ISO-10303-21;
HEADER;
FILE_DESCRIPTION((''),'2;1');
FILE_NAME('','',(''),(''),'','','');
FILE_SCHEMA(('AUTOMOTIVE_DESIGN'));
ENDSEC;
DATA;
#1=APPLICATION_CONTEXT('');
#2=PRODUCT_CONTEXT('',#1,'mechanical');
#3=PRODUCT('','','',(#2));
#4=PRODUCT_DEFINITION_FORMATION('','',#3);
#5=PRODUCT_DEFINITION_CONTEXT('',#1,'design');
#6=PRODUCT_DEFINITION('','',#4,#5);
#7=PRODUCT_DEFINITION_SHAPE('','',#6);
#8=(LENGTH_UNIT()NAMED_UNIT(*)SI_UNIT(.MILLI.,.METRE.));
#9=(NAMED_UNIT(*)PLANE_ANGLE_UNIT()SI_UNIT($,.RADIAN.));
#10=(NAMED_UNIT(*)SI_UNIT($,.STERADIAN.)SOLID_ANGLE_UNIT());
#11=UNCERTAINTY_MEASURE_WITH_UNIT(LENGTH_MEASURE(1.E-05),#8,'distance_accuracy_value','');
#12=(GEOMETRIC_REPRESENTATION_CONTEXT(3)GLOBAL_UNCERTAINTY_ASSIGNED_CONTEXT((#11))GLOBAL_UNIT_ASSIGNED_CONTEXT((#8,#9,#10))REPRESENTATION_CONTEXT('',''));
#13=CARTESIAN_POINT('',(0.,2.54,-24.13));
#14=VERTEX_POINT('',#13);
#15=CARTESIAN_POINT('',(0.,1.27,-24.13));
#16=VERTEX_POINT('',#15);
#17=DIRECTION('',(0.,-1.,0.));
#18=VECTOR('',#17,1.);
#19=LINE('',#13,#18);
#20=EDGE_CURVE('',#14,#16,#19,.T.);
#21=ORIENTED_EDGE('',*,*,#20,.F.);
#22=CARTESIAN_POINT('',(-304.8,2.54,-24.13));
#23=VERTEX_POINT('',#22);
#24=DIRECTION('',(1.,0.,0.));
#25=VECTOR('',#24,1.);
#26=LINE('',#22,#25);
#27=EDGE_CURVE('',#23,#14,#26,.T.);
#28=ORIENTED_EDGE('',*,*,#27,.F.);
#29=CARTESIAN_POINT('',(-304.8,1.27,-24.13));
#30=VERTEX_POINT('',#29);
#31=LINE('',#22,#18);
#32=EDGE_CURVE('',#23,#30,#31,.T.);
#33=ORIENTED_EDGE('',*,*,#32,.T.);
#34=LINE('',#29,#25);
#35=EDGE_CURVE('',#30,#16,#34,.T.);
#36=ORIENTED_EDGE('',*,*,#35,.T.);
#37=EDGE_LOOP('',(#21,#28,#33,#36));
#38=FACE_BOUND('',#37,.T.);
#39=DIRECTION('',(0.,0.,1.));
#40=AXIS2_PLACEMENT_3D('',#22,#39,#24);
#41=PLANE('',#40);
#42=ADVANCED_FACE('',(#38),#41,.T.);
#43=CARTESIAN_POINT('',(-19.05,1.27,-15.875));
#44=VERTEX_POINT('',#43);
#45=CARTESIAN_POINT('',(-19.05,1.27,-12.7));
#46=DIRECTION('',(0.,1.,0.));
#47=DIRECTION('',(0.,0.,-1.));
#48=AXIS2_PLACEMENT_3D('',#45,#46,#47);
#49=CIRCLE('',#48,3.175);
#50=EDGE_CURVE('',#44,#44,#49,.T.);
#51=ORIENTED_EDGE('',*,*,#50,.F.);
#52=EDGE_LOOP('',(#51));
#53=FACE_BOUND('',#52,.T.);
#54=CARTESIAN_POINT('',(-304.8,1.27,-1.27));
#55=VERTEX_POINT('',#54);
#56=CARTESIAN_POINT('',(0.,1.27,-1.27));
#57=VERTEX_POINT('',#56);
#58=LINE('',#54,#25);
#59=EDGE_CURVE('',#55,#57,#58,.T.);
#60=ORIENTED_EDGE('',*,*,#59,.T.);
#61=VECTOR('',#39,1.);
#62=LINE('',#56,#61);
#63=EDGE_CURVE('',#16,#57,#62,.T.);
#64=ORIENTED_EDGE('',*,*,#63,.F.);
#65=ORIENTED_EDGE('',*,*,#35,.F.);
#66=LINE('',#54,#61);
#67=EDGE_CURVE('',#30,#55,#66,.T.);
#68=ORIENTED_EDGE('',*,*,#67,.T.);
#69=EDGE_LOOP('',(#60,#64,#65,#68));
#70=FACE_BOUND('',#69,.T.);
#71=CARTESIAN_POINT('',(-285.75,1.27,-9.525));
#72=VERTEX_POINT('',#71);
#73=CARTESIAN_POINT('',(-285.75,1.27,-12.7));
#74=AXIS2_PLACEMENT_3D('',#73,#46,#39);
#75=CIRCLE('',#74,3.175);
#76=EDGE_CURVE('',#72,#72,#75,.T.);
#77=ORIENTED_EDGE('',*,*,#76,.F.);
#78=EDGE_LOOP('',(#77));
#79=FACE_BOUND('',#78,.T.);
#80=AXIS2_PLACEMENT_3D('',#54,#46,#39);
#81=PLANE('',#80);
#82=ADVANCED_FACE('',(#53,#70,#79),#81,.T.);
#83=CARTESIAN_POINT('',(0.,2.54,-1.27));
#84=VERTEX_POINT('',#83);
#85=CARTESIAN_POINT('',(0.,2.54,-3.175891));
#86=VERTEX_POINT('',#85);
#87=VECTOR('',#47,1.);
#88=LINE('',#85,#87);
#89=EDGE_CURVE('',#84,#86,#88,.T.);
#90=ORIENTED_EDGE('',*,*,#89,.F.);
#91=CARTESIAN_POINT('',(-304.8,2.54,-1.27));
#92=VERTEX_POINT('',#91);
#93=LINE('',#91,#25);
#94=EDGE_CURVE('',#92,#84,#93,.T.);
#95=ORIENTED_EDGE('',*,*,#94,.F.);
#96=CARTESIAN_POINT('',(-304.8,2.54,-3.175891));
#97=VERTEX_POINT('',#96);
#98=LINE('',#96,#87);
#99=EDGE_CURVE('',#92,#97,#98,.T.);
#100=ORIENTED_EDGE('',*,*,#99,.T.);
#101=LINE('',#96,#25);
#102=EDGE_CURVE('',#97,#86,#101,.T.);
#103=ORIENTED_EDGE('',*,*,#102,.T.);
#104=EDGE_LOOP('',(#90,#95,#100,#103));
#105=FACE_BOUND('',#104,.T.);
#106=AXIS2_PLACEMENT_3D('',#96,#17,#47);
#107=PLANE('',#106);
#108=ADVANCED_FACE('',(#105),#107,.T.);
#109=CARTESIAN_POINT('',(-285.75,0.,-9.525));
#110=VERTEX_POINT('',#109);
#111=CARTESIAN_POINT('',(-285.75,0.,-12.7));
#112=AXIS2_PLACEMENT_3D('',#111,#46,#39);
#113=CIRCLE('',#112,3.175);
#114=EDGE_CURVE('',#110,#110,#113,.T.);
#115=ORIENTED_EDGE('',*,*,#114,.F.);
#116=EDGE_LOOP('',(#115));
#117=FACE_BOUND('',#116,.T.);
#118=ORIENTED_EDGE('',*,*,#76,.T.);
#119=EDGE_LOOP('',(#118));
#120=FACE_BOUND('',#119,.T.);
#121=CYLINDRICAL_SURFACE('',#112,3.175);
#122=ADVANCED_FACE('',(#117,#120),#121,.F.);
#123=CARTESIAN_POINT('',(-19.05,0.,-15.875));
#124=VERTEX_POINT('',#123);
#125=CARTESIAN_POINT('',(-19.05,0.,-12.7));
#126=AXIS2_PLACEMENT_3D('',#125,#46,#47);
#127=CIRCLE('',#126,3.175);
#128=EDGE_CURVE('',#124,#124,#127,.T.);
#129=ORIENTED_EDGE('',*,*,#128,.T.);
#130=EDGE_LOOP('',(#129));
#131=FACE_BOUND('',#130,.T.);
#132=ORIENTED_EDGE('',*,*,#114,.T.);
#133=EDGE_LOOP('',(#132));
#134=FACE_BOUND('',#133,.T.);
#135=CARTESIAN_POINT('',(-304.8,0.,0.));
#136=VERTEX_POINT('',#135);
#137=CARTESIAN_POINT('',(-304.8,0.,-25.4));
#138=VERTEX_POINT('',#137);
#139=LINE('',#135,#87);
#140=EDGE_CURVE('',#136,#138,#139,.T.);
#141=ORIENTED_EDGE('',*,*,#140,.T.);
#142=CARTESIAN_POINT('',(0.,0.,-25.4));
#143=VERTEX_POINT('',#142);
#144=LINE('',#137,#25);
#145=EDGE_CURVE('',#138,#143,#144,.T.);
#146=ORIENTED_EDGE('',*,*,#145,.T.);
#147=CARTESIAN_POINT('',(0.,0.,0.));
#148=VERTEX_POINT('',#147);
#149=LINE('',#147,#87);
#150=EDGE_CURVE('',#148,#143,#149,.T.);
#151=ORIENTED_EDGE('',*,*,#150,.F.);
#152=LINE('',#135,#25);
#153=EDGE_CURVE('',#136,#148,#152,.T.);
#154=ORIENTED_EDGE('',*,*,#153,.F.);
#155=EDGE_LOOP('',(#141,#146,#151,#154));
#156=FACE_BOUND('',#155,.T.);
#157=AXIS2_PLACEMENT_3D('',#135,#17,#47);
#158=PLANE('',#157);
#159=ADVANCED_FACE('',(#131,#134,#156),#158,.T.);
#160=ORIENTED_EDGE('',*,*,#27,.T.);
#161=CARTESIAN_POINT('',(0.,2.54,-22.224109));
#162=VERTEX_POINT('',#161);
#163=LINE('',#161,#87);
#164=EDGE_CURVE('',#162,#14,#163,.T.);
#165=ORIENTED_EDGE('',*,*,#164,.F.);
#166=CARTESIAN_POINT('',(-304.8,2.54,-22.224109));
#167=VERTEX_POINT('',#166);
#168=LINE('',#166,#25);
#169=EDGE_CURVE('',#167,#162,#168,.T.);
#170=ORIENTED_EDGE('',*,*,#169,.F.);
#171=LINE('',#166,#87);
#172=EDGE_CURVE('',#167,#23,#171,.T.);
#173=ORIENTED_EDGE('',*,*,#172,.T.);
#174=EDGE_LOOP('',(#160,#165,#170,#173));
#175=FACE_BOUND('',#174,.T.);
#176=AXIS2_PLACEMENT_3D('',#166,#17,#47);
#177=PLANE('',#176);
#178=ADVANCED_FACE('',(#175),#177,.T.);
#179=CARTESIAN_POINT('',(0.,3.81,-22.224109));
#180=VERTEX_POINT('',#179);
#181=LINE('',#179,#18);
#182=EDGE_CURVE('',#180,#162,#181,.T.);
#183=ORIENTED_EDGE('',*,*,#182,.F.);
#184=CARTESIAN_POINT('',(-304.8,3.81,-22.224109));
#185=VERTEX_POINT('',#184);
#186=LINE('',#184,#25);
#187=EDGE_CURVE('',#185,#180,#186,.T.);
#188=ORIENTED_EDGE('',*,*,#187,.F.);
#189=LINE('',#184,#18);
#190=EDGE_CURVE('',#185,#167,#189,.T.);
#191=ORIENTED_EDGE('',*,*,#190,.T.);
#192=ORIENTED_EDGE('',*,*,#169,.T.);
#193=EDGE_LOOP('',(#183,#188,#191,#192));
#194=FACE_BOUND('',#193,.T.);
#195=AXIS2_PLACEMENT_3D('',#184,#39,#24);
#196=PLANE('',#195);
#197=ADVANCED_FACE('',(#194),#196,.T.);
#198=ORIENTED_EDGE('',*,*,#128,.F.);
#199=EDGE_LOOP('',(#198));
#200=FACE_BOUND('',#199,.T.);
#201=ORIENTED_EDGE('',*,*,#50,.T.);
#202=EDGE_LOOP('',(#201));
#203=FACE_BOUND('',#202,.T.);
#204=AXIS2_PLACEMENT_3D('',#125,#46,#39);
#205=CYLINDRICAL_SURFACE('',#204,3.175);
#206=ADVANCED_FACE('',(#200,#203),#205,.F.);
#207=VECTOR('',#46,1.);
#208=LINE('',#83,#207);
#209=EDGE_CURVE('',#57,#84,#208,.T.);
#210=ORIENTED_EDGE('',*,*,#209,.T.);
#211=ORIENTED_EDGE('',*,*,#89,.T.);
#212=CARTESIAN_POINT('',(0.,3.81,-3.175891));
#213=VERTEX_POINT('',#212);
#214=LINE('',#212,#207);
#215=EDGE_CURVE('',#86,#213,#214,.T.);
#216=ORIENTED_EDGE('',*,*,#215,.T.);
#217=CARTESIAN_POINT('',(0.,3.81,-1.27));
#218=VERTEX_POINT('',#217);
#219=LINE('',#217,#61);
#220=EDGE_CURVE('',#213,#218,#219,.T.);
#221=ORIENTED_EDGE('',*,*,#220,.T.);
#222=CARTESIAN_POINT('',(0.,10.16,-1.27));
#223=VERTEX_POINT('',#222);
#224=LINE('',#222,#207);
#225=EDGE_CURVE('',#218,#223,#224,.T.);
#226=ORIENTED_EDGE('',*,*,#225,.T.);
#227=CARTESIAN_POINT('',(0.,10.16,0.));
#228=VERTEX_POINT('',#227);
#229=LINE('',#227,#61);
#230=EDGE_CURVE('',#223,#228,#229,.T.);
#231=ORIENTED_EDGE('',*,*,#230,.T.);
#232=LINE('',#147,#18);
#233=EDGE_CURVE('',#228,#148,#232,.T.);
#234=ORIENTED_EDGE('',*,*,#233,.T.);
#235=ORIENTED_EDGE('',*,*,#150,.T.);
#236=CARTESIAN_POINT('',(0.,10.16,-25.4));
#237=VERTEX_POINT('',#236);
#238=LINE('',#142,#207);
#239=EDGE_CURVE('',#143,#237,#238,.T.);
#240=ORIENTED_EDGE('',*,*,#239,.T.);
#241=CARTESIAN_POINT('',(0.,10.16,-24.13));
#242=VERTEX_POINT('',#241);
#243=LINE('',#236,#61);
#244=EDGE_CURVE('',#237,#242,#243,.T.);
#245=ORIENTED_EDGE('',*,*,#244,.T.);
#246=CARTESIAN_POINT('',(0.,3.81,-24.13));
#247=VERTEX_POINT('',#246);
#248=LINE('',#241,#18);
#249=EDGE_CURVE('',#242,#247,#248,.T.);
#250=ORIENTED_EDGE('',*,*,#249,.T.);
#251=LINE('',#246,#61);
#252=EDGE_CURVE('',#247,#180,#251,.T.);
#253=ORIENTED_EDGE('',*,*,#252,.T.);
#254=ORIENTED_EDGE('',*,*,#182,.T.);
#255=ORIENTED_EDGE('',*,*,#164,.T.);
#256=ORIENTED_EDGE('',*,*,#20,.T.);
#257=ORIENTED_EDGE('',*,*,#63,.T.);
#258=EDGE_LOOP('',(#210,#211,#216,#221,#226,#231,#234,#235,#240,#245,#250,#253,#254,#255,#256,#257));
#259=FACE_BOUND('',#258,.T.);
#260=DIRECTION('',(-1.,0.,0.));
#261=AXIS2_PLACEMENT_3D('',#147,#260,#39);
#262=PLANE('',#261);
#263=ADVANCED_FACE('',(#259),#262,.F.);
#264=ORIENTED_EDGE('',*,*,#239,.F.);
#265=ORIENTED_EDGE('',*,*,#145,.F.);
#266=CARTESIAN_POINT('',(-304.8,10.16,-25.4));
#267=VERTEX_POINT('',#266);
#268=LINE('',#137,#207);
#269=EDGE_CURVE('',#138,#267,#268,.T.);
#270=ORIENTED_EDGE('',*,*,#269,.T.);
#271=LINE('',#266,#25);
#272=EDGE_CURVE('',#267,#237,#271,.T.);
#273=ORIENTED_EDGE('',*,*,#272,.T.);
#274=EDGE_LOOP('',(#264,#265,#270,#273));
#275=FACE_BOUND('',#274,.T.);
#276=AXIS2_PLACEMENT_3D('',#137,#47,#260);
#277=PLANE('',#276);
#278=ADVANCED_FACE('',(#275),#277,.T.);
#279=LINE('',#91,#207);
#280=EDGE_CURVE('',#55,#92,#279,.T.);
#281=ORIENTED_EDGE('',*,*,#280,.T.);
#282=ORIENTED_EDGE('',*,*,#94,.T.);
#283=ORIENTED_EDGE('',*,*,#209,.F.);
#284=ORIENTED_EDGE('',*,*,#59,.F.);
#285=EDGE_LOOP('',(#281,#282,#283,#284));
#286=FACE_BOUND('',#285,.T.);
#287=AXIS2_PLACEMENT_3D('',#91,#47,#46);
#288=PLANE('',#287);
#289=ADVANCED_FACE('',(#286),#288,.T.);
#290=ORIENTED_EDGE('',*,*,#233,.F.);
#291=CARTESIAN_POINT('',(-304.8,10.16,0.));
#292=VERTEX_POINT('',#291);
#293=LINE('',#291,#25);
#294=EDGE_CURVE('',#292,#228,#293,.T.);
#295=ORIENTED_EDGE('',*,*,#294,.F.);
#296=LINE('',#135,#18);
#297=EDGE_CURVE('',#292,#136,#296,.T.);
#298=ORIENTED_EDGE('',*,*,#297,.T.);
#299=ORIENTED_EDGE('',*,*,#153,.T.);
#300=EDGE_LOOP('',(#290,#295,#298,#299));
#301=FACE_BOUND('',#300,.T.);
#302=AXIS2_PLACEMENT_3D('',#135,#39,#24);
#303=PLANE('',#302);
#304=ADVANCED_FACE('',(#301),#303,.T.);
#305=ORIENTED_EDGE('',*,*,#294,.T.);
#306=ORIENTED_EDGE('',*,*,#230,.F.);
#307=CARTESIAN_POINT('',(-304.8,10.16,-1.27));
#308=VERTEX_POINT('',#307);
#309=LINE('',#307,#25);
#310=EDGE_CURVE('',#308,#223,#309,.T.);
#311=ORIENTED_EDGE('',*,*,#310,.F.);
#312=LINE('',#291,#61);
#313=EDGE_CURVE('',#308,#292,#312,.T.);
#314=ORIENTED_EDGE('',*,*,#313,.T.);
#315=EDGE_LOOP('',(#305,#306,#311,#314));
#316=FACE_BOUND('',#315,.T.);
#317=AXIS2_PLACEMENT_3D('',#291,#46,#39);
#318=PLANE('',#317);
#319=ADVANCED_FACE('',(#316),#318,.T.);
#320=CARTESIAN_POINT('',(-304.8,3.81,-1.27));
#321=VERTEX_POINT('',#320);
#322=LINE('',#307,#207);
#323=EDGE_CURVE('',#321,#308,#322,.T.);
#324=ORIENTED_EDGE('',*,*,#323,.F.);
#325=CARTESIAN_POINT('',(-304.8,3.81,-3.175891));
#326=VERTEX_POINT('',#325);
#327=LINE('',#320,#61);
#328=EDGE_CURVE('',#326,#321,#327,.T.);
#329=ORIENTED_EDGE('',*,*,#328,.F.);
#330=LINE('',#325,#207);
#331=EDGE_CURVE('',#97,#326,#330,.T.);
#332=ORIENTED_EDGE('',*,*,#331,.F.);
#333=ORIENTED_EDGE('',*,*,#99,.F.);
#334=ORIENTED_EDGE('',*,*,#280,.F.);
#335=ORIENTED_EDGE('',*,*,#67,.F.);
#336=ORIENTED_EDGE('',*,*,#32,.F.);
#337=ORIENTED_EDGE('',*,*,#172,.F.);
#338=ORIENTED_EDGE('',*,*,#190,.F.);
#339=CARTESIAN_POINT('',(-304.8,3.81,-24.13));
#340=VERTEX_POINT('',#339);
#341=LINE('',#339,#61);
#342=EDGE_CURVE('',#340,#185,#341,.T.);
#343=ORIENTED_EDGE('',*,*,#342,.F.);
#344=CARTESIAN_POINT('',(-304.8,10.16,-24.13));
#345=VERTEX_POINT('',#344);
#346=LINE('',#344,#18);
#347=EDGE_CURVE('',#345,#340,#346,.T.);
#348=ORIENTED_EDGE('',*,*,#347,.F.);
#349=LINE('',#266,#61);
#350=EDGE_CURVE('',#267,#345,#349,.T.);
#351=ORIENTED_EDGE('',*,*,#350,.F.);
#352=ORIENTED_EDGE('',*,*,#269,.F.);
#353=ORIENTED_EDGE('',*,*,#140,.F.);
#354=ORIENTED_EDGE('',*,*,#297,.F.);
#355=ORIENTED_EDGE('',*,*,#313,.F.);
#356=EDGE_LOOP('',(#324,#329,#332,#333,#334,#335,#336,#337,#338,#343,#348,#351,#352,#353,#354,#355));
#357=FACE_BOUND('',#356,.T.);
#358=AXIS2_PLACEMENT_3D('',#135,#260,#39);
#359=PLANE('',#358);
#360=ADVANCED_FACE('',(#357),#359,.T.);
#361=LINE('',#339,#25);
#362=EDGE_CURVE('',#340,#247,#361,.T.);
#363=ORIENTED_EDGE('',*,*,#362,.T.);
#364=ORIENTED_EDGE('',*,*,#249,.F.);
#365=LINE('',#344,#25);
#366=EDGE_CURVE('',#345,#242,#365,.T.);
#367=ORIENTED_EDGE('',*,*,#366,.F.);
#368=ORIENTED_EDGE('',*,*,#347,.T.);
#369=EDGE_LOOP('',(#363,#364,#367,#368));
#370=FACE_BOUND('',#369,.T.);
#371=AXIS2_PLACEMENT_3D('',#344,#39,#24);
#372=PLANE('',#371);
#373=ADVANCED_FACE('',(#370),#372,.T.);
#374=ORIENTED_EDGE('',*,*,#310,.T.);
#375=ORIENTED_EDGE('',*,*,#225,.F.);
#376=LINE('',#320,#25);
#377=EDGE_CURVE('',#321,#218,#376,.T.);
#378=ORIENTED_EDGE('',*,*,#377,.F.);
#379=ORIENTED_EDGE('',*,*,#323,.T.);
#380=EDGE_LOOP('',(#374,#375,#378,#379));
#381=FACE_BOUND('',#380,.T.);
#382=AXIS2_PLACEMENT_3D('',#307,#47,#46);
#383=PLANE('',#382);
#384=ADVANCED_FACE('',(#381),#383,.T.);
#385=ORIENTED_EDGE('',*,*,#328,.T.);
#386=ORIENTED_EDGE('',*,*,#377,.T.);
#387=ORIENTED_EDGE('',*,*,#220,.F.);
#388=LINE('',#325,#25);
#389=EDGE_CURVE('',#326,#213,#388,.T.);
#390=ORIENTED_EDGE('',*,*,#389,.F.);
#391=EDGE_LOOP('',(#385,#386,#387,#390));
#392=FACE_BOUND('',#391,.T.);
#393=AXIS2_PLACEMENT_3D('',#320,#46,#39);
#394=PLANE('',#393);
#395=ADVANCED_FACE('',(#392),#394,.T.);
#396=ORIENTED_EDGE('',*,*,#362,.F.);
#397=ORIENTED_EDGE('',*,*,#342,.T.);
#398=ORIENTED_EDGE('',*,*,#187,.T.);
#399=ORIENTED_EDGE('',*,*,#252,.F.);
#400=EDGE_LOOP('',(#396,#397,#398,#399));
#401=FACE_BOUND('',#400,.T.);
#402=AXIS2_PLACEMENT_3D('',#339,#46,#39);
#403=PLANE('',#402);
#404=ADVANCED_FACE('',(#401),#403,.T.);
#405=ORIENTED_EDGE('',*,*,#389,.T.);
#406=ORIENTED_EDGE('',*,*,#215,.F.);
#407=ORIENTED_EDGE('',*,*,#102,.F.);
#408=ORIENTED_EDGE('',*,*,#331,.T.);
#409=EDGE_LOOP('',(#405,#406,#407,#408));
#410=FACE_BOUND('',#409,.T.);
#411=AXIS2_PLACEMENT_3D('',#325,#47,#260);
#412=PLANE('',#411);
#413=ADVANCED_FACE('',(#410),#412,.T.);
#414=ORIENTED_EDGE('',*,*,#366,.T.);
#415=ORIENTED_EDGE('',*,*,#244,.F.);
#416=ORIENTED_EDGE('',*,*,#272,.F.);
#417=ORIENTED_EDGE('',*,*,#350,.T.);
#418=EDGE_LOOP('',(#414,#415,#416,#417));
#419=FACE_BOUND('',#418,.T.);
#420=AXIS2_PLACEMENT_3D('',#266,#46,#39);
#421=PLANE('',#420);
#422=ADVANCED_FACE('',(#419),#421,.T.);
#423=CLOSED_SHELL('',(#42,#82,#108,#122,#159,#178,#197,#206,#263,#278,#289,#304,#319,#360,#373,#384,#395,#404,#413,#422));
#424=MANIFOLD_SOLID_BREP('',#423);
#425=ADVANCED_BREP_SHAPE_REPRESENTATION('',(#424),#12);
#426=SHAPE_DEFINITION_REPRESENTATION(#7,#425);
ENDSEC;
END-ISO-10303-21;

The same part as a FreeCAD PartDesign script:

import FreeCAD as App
import Part
import Sketcher

V = App.Vector
Q = App.Units.Quantity

doc = App.newDocument("Part")
body = doc.addObject("PartDesign::Body", "Body")

# Sketch on YZ plane
sketch1 = body.newObject("Sketcher::SketchObject", "Sketch")
sketch1.AttachmentSupport = (doc.getObject("YZ_Plane"), [""])
sketch1.MapMode = "FlatFace"
sketch1.addGeometry([
    Part.LineSegment(V(0, 0, 0), V(0, -25.4, 0)),  # 0
    Part.LineSegment(V(0, -25.4, 0), V(10.16, -25.4, 0)),  # 1
    Part.LineSegment(V(10.16, -25.4, 0), V(10.16, -24.13, 0)),  # 2
    Part.LineSegment(V(10.16, -24.13, 0), V(3.81, -24.13, 0)),  # 3
    Part.LineSegment(V(3.81, -24.13, 0), V(3.81, -22.224109, 0)),  # 4
    Part.LineSegment(V(3.81, -22.224109, 0), V(2.54, -22.224109, 0)),  # 5
    Part.LineSegment(V(2.54, -22.224109, 0), V(2.54, -24.13, 0)),  # 6
    Part.LineSegment(V(2.54, -24.13, 0), V(1.27, -24.13, 0)),  # 7
    Part.LineSegment(V(1.27, -24.13, 0), V(1.27, -1.27, 0)),  # 8
    Part.LineSegment(V(1.27, -1.27, 0), V(2.54, -1.27, 0)),  # 9
    Part.LineSegment(V(2.54, -1.27, 0), V(2.54, -3.175891, 0)),  # 10
    Part.LineSegment(V(2.54, -3.175891, 0), V(3.81, -3.175891, 0)),  # 11
    Part.LineSegment(V(3.81, -3.175891, 0), V(3.81, -1.27, 0)),  # 12
    Part.LineSegment(V(3.81, -1.27, 0), V(10.16, -1.27, 0)),  # 13
    Part.LineSegment(V(10.16, -1.27, 0), V(10.16, 0, 0)),  # 14
    Part.LineSegment(V(10.16, 0, 0), V(0, 0, 0)),  # 15
], False)
sketch1.addConstraint([
    Sketcher.Constraint("Coincident", 0, 2, 1, 1),
    Sketcher.Constraint("Coincident", 1, 2, 2, 1),
    Sketcher.Constraint("Coincident", 2, 2, 3, 1),
    Sketcher.Constraint("Coincident", 3, 2, 4, 1),
    Sketcher.Constraint("Coincident", 4, 2, 5, 1),
    Sketcher.Constraint("Coincident", 5, 2, 6, 1),
    Sketcher.Constraint("Coincident", 6, 2, 7, 1),
    Sketcher.Constraint("Coincident", 7, 2, 8, 1),
    Sketcher.Constraint("Coincident", 8, 2, 9, 1),
    Sketcher.Constraint("Coincident", 9, 2, 10, 1),
    Sketcher.Constraint("Coincident", 10, 2, 11, 1),
    Sketcher.Constraint("Coincident", 11, 2, 12, 1),
    Sketcher.Constraint("Coincident", 12, 2, 13, 1),
    Sketcher.Constraint("Coincident", 13, 2, 14, 1),
    Sketcher.Constraint("Coincident", 14, 2, 15, 1),
    Sketcher.Constraint("Coincident", 15, 2, 0, 1),
    Sketcher.Constraint("Vertical", 0),
    Sketcher.Constraint("Horizontal", 1),
    Sketcher.Constraint("Vertical", 2),
    Sketcher.Constraint("Horizontal", 3),
    Sketcher.Constraint("Vertical", 4),
    Sketcher.Constraint("Horizontal", 5),
    Sketcher.Constraint("Vertical", 6),
    Sketcher.Constraint("Horizontal", 7),
    Sketcher.Constraint("Vertical", 8),
    Sketcher.Constraint("Horizontal", 9),
    Sketcher.Constraint("Vertical", 10),
    Sketcher.Constraint("Horizontal", 11),
    Sketcher.Constraint("Vertical", 12),
    Sketcher.Constraint("Horizontal", 13),
    Sketcher.Constraint("Vertical", 14),
    Sketcher.Constraint("Horizontal", 15),
    Sketcher.Constraint("Coincident", 15, 2, -1, 1),
    Sketcher.Constraint("Horizontal", 3, 2, 6, 2),
    Sketcher.Constraint("Horizontal", 9, 2, 12, 2),
    Sketcher.Constraint("Vertical", 6, 2, 9, 2),
    Sketcher.Constraint("Vertical", 4, 2, 11, 2),
    Sketcher.Constraint("Vertical", 2, 2, 13, 2),
    Sketcher.Constraint("Equal", 5, 7),
    Sketcher.Constraint("Equal", 11, 2),
    Sketcher.Constraint("Equal", 6, 10),
    Sketcher.Constraint("Equal", 2, 14),
    Sketcher.Constraint("DistanceY", 0, 2, 0, 1, Q("1 in")),
    Sketcher.Constraint("DistanceX", 1, 1, 1, 2, Q("0.4 in")),
    Sketcher.Constraint("DistanceY", 8, 1, 8, 2, Q("0.9 in")),
    Sketcher.Constraint("DistanceX", 3, 2, 3, 1, Q("0.25 in")),
    Sketcher.Constraint("DistanceY", 4, 1, 4, 2, 1.905891),
])
pad1 = body.newObject("PartDesign::Pad", "Pad")
pad1.Profile = sketch1
pad1.Length = Q("12 in")
pad1.Reversed = True

# Sketch on XZ plane
sketch2 = body.newObject("Sketcher::SketchObject", "Sketch001")
sketch2.AttachmentSupport = (doc.getObject("XZ_Plane"), [""])
sketch2.MapMode = "FlatFace"
sketch2.AttachmentOffset = App.Placement(V(0, 0, -0.05 * 25.4), App.Rotation())
sketch2.addGeometry([
    Part.Circle(V(-285.75, -12.7, 0), V(0, 0, 1), 3.175),
    Part.Circle(V(-19.05, -12.7, 0), V(0, 0, 1), 3.175),
], False)
sketch2.addConstraint([
    Sketcher.Constraint("Equal", 0, 1),
    Sketcher.Constraint("Horizontal", 0, 3, 1, 3),
    Sketcher.Constraint("Diameter", 0, Q("0.25 in")),
    Sketcher.Constraint("DistanceY", 0, 3, -1, 1, Q("0.5 in")),
    Sketcher.Constraint("DistanceX", 0, 3, 1, 3, Q("10.5 in")),
    Sketcher.Constraint("DistanceX", 0, 3, -1, 1, Q("11.25 in")),
])
pocket1 = body.newObject("PartDesign::Pocket", "Pocket")
pocket1.Profile = sketch2
pocket1.Type = "ThroughAll"
pocket1.Reversed = True

doc.recompute()
